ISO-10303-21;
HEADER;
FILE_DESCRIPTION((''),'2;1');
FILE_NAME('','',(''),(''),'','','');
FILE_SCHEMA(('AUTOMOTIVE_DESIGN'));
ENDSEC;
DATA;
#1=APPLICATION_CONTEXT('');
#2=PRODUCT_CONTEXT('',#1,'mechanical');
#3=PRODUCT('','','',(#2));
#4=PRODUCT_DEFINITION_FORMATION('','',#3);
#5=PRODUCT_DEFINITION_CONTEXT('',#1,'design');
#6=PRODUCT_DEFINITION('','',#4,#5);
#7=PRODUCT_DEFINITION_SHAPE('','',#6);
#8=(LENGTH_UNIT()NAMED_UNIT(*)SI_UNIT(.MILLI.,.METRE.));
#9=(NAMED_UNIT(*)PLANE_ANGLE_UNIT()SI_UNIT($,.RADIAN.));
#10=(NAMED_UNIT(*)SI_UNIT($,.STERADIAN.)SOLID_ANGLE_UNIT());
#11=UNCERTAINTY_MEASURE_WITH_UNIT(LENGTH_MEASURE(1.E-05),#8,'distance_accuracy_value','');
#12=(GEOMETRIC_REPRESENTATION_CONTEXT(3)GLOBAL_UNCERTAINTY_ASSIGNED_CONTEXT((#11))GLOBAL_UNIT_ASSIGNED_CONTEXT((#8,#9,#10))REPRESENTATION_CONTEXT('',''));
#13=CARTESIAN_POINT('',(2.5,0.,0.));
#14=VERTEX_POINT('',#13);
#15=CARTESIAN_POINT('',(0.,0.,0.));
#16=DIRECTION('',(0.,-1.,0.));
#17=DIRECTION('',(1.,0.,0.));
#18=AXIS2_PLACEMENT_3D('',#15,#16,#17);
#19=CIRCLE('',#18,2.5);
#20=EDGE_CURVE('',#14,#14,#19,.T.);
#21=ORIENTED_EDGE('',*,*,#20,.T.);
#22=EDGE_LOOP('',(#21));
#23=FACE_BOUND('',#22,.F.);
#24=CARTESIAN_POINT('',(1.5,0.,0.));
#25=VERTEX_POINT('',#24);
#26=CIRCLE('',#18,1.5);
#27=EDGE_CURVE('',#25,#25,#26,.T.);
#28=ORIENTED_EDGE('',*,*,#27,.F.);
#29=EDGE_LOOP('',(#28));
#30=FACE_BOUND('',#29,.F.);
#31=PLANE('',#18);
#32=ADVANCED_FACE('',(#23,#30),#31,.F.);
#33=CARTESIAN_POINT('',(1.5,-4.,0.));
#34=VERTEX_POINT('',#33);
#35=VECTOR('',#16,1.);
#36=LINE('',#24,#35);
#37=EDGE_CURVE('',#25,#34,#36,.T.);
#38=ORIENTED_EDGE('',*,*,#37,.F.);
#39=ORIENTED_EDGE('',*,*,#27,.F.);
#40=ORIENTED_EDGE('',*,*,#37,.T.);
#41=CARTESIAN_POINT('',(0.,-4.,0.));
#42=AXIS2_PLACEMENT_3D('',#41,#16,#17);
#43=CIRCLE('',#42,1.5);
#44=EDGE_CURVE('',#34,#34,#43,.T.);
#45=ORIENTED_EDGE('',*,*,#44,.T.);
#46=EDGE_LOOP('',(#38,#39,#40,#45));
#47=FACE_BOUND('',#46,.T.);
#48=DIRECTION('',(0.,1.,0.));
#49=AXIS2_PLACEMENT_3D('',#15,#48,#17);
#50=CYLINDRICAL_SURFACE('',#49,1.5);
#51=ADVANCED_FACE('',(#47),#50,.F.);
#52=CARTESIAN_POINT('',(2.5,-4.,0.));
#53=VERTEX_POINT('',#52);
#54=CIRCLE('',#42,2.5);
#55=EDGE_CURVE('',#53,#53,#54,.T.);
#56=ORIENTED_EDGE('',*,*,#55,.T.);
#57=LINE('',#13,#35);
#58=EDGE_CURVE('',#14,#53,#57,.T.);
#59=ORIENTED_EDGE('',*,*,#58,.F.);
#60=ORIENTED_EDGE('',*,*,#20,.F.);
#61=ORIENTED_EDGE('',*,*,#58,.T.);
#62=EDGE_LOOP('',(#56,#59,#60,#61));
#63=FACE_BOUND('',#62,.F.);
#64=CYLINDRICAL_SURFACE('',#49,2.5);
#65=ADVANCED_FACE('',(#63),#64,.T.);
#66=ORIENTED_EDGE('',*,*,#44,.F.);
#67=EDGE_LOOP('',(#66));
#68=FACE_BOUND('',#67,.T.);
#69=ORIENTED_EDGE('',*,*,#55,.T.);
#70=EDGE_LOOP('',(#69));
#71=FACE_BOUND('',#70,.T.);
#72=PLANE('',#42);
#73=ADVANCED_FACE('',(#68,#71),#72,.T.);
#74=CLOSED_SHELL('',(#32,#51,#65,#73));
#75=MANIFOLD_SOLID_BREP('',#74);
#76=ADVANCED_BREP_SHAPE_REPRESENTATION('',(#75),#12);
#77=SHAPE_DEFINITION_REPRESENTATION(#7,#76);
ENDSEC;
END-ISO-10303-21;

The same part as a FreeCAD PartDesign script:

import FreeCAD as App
import Part
import Sketcher
from FreeCAD import Vector
Q = App.Units.Quantity

doc = App.newDocument("Part")
body = doc.addObject("PartDesign::Body", "Body")

# Sketch on XY plane
sketch1 = body.newObject("Sketcher::SketchObject", "Sketch")
sketch1.AttachmentSupport = (doc.getObject("XY_Plane"), [""])
sketch1.MapMode = "FlatFace"
sketch1.addGeometry([
    Part.Circle(Vector(0, 0, 0), Vector(0, 0, 1), 2.5),
    Part.Circle(Vector(0, 0, 0), Vector(0, 0, 1), 1.5),
], False)
sketch1.addConstraint([
    Sketcher.Constraint("Coincident", 0, 3, -1, 1),
    Sketcher.Constraint("Coincident", 1, 3, -1, 1),
    Sketcher.Constraint("Diameter", 0, Q("5 mm")),
    Sketcher.Constraint("Diameter", 1, Q("3 mm")),
])
pad1 = body.newObject("PartDesign::Pad", "Pad")
pad1.Profile = sketch1
pad1.Length = 4
body2 = doc.addObject("PartDesign::Body", "Body001")
doc.recompute()

body.Placement = App.Placement(Vector(0, 0, 0), App.Rotation(Vector(1, 0, 0), 90))
boolean = body2.newObject("PartDesign::Boolean", "Boolean")
boolean.Type = "Fuse"
boolean.addObjects([body])

doc.recompute()
